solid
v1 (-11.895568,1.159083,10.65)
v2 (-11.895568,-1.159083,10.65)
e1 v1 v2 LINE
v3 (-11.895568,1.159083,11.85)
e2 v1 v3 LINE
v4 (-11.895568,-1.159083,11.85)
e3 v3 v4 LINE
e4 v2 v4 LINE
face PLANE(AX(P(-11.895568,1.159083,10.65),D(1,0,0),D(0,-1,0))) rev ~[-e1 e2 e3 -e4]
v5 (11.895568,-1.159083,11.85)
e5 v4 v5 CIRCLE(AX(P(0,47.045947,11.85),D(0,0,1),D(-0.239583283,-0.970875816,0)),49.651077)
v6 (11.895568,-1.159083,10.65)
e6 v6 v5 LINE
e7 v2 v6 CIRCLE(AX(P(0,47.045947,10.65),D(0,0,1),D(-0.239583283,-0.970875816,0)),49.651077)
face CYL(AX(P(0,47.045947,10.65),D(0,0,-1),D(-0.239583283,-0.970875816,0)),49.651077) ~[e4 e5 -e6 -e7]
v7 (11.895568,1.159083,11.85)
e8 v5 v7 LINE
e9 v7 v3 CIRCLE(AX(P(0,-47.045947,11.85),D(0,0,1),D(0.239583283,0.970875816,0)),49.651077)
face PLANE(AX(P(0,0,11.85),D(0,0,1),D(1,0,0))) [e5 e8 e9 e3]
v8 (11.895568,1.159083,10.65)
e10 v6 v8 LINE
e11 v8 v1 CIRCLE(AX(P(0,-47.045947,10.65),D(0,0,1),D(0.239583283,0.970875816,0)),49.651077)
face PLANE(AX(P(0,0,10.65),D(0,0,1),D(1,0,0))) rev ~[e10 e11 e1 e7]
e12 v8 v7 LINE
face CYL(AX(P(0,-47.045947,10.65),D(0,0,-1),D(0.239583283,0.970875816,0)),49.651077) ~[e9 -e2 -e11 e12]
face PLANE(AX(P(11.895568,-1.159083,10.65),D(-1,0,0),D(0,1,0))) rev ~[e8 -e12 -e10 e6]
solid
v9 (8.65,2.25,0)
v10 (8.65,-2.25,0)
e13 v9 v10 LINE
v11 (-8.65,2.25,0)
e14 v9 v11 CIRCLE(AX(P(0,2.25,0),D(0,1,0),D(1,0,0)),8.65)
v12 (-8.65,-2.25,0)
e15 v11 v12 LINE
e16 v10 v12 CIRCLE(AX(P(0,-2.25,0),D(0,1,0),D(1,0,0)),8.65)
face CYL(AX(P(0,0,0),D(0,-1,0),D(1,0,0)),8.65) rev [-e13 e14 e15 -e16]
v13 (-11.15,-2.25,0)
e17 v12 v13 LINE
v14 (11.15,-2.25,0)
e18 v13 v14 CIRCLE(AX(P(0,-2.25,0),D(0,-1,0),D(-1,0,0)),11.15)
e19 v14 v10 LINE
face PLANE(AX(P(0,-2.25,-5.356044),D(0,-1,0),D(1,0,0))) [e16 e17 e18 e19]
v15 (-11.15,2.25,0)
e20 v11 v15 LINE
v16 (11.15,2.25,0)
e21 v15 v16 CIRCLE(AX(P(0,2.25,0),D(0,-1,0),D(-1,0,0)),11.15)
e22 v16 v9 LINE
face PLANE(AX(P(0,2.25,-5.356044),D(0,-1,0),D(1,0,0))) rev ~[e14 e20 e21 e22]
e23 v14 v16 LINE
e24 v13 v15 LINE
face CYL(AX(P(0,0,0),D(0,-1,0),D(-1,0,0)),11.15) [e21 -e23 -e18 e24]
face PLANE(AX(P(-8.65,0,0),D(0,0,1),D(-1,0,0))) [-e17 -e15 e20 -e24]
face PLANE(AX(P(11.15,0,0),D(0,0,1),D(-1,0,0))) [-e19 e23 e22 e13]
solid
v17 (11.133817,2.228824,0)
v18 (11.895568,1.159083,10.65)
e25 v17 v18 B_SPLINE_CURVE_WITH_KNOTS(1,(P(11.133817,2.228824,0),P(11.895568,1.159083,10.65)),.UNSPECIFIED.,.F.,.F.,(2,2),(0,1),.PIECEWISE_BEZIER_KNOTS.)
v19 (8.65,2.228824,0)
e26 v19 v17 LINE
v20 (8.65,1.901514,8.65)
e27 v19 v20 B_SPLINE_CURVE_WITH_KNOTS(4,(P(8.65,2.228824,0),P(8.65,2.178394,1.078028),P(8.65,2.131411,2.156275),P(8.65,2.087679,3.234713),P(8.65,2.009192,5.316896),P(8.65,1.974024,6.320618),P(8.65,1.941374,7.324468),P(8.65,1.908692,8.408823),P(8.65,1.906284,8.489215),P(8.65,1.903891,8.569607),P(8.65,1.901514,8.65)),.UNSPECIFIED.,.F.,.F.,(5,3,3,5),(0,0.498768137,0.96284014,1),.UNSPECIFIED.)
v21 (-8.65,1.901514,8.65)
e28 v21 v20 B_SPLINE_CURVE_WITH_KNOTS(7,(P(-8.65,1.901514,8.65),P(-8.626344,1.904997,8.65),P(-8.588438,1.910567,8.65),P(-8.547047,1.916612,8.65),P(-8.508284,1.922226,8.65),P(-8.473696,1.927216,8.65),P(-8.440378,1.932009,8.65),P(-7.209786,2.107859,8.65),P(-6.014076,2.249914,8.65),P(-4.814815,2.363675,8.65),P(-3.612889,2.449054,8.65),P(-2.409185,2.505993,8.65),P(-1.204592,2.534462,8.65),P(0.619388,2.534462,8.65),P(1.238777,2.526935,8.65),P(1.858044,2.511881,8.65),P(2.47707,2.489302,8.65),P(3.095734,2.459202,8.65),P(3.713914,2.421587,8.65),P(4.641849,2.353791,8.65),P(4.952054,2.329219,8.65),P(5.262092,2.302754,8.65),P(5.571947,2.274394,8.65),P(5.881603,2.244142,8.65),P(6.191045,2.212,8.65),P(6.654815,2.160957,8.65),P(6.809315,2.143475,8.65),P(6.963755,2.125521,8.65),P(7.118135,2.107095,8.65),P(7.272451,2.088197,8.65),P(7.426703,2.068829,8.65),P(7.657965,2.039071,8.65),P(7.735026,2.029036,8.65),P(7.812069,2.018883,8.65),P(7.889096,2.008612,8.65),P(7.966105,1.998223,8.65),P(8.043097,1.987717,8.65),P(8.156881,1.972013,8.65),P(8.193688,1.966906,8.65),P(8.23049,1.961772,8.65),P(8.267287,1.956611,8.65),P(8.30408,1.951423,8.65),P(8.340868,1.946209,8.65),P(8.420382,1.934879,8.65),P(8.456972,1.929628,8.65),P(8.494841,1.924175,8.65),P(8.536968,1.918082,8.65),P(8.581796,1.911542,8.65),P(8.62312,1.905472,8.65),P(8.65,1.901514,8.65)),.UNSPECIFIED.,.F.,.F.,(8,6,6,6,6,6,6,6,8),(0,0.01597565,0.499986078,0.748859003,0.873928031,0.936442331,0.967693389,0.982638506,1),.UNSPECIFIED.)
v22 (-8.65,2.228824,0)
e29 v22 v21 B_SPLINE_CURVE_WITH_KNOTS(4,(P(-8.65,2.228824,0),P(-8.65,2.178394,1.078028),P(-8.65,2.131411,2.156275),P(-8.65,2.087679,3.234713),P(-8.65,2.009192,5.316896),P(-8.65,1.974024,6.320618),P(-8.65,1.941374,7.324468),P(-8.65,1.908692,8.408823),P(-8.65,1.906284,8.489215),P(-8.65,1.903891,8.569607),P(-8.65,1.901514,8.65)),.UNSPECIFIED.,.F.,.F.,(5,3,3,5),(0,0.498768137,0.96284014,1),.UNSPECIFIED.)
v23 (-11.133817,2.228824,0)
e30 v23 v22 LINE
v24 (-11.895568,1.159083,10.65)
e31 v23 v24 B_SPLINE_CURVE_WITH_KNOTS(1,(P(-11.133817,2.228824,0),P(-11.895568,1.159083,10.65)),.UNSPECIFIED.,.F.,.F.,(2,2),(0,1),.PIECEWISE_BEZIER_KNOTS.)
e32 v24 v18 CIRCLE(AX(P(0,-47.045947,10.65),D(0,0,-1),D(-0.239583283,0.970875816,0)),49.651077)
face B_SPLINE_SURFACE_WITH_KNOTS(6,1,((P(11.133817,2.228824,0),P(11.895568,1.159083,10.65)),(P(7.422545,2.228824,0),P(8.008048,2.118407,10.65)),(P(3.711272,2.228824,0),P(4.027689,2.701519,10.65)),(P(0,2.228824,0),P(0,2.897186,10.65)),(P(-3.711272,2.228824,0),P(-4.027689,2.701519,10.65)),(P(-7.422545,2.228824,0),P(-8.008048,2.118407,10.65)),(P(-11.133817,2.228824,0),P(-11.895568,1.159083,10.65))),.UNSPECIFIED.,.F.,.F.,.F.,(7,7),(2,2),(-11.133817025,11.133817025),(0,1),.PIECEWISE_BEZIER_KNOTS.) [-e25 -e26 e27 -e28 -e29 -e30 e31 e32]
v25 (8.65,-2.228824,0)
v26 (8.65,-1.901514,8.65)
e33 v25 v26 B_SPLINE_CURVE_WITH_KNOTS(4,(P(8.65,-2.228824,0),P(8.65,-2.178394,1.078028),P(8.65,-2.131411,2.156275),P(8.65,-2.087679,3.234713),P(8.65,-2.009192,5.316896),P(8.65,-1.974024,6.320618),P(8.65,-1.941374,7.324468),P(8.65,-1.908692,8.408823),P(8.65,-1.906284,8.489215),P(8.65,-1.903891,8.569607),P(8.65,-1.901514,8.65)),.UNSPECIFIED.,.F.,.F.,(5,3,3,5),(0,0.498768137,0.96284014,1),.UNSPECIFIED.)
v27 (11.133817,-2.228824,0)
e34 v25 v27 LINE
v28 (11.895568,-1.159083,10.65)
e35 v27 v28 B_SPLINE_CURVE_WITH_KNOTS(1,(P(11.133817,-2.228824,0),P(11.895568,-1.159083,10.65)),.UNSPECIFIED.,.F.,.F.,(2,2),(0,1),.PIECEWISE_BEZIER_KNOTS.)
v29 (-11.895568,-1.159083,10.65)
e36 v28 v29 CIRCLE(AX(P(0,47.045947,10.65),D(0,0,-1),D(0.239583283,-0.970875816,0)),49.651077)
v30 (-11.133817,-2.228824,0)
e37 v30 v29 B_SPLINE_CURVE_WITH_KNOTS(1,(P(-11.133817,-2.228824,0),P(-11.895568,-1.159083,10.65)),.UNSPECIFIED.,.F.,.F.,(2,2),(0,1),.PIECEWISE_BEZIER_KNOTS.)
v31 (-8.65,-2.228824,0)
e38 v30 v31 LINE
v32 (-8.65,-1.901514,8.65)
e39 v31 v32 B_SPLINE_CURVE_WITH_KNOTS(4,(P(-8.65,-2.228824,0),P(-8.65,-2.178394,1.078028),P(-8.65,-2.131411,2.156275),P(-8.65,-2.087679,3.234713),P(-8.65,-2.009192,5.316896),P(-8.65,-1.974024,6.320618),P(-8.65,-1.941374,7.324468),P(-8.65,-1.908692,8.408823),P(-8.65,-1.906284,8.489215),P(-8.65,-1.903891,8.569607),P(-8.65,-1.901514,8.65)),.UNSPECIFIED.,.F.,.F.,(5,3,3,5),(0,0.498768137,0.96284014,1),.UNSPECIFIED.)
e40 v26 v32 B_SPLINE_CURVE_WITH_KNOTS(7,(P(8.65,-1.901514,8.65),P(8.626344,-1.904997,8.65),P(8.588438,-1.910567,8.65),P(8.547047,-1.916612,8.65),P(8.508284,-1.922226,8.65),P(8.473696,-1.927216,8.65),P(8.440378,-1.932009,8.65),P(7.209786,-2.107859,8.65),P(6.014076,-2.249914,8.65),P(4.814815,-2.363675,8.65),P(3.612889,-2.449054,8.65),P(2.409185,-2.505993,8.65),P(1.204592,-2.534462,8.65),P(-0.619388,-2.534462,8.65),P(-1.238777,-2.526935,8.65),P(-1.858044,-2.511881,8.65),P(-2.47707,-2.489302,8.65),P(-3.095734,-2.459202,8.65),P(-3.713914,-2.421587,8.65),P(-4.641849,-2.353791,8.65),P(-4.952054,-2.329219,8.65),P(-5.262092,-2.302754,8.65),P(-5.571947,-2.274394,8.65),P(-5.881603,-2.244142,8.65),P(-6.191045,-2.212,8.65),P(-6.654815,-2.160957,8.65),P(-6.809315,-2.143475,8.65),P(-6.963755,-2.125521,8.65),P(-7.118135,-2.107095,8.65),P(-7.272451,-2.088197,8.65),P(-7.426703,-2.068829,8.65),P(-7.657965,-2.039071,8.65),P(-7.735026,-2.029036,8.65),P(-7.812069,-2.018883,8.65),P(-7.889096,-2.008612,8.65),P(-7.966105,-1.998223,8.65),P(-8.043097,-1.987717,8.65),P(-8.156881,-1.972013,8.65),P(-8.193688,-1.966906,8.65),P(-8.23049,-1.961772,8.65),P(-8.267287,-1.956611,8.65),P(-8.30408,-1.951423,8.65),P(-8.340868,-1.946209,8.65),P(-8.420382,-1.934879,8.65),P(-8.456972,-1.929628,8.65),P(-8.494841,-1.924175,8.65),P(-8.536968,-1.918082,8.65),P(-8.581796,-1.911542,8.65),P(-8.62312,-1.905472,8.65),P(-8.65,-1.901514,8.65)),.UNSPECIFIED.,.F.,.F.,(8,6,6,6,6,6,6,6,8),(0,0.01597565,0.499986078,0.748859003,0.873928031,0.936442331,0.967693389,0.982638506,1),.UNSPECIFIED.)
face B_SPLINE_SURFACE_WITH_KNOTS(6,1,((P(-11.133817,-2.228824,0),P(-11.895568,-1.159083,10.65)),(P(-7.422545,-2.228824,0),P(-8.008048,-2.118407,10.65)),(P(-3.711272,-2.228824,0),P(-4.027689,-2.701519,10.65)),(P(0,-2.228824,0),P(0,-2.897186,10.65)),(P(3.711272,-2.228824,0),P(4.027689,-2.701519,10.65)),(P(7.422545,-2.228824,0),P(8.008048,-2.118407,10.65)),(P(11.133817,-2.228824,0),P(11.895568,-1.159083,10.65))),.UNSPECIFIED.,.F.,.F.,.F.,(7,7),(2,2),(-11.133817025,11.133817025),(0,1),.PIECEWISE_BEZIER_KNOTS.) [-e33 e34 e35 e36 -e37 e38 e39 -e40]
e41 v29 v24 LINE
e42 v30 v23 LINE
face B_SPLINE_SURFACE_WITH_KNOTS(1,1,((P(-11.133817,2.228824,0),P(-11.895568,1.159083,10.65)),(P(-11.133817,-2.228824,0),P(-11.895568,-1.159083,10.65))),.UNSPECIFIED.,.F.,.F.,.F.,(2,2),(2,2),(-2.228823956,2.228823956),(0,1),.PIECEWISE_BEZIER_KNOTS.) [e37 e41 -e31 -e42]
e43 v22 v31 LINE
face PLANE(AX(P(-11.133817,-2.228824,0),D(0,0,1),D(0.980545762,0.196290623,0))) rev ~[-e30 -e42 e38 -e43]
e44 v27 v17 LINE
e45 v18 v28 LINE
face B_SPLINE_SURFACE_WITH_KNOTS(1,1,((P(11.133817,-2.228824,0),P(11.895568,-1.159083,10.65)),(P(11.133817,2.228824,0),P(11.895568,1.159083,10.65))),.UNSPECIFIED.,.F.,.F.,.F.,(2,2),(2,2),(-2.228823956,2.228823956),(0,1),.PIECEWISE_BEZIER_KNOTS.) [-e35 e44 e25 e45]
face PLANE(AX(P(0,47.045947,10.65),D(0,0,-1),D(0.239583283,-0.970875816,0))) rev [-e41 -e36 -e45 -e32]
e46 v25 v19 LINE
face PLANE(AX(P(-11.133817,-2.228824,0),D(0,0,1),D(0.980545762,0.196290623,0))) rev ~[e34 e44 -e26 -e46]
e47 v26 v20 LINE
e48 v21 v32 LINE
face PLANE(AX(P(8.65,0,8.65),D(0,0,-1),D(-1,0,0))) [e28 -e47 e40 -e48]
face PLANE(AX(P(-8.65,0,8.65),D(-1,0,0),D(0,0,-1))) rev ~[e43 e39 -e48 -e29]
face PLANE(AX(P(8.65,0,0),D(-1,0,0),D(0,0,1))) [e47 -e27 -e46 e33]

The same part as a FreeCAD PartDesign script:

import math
import FreeCAD as App
import Part
import Sketcher


def add_polygon(sketch, points):
    """Adds a closed chain of lines whose ends are joined by coincident constraints."""
    first, n = sketch.GeometryCount, len(points)
    for a, b in zip(points, points[1:] + points[:1]):
        sketch.addGeometry(Part.LineSegment(App.Vector(*a, 0), App.Vector(*b, 0)), False)
    for i in range(n):
        sketch.addConstraint(Sketcher.Constraint("Coincident", first + i, 2, first + (i + 1) % n, 1))

doc = App.newDocument("Part")
body = doc.addObject("PartDesign::Body", "Body")

# Sketch on XZ plane
sketch1 = body.newObject("Sketcher::SketchObject", "Sketch")
sketch1.AttachmentSupport = (doc.getObject("XZ_Plane"), [""])
sketch1.MapMode = "FlatFace"
sketch1.addGeometry([
    Part.LineSegment(App.Vector(11.2, 0, 0), App.Vector(8.7, 0, 0)),
    Part.ArcOfCircle(Part.Circle(App.Vector(0, 0, 0), App.Vector(0, 0, 1), 8.7), math.radians(180), math.radians(360)),
    Part.LineSegment(App.Vector(-8.7, 0, 0), App.Vector(-11.2, 0, 0)),
    Part.ArcOfCircle(Part.Circle(App.Vector(0, 0, 0), App.Vector(0, 0, 1), 11.2), math.radians(180), math.radians(360)),
], False)
sketch1.addConstraint([
    Sketcher.Constraint("Coincident", 0, 2, 1, 2),
    Sketcher.Constraint("Coincident", 1, 1, 2, 1),
    Sketcher.Constraint("Coincident", 2, 2, 3, 1),
    Sketcher.Constraint("Coincident", 3, 2, 0, 1),
    Sketcher.Constraint("Horizontal", 0),
    Sketcher.Constraint("Horizontal", 2),
    Sketcher.Constraint("Coincident", 1, 3, -1, 1),
    Sketcher.Constraint("Coincident", 3, 3, -1, 1),
    Sketcher.Constraint("PointOnObject", 0, 2, -1),
    Sketcher.Constraint("PointOnObject", 1, 1, -1),
    Sketcher.Constraint("Radius", 1, 8.65),
    Sketcher.Constraint("Radius", 3, 11.15),
])
pad1 = body.newObject("PartDesign::Pad", "Pad")
pad1.Profile = sketch1
pad1.Type = "TwoLengths"
pad1.Length = 2.25
pad1.Length2 = 2.25
body2 = doc.addObject("PartDesign::Body", "Body001")

# Sketch on XY plane
sketch2 = body2.newObject("Sketcher::SketchObject", "Sketch001")
sketch2.AttachmentSupport = (doc.getObject("XY_Plane001"), [""])
sketch2.MapMode = "FlatFace"
sketch2.AttachmentOffset = App.Placement(App.Vector(0, 0, 10.65), App.Rotation())
sketch2.addGeometry([
    Part.LineSegment(App.Vector(-11.9, 1.2, 0), App.Vector(-11.9, -1.2, 0)),
    Part.ArcOfCircle(Part.Circle(App.Vector(0, 47, 0), App.Vector(0, 0, 1), 49.7), math.radians(-104), math.radians(-76)),
    Part.LineSegment(App.Vector(11.9, -1.2, 0), App.Vector(11.9, 1.2, 0)),
    Part.ArcOfCircle(Part.Circle(App.Vector(0, -47, 0), App.Vector(0, 0, 1), 49.7), math.radians(76), math.radians(104)),
], False)
sketch2.addConstraint([
    Sketcher.Constraint("Coincident", 0, 2, 1, 1),
    Sketcher.Constraint("Coincident", 1, 2, 2, 1),
    Sketcher.Constraint("Coincident", 2, 2, 3, 1),
    Sketcher.Constraint("Coincident", 3, 2, 0, 1),
    Sketcher.Constraint("Vertical", 0),
    Sketcher.Constraint("Vertical", 2),
    Sketcher.Constraint("Equal", 1, 3),
    Sketcher.Constraint("Symmetric", 1, 3, 3, 3, -1, 1),
    Sketcher.Constraint("Symmetric", 0, 2, 1, 2, -2),
    Sketcher.Constraint("Radius", 1, 49.651077),
    Sketcher.Constraint("DistanceY", 0, 2, 0, 1, 2.318166),
    Sketcher.Constraint("DistanceX", 0, 2, -1, 1, 11.895568),
])
pad2 = body2.newObject("PartDesign::Pad", "Pad001")
pad2.Profile = sketch2
pad2.Length = 1.2
body3 = doc.addObject("PartDesign::Body", "Body002")

# Sketch on XY plane
sketch3 = body3.newObject("Sketcher::SketchObject", "Sketch002")
sketch3.AttachmentSupport = (doc.getObject("XY_Plane002"), [""])
sketch3.MapMode = "FlatFace"
add_polygon(sketch3, [(-11.1, 2.2), (-11.1, -2.2), (11.1, -2.2), (11.1, 2.2)])  # lines 0-3
sketch3.addConstraint([
    Sketcher.Constraint("Vertical", 0),
    Sketcher.Constraint("Horizontal", 1),
    Sketcher.Constraint("Vertical", 2),
    Sketcher.Constraint("Horizontal", 3),
    Sketcher.Constraint("Symmetric", 0, 2, 2, 2, -1, 1),
    Sketcher.Constraint("DistanceX", 1, 1, 1, 2, 22.267634),
    Sketcher.Constraint("DistanceY", 0, 2, 0, 1, 4.457648),
])

# Sketch on XY plane
sketch4 = body3.newObject("Sketcher::SketchObject", "Sketch003")
sketch4.AttachmentSupport = (doc.getObject("XY_Plane002"), [""])
sketch4.MapMode = "FlatFace"
sketch4.AttachmentOffset = App.Placement(App.Vector(0, 0, 10.65), App.Rotation())
sketch4.addGeometry([
    Part.LineSegment(App.Vector(-11.9, -1.2, 0), App.Vector(-11.9, 1.2, 0)),
    Part.ArcOfCircle(Part.Circle(App.Vector(0, -47, 0), App.Vector(0, 0, 1), 49.7), math.radians(76), math.radians(104)),
    Part.LineSegment(App.Vector(11.9, 1.2, 0), App.Vector(11.9, -1.2, 0)),
    Part.ArcOfCircle(Part.Circle(App.Vector(0, 47, 0), App.Vector(0, 0, 1), 49.7), math.radians(-104), math.radians(-76)),
], False)
sketch4.addConstraint([
    Sketcher.Constraint("Coincident", 0, 2, 1, 2),
    Sketcher.Constraint("Coincident", 1, 1, 2, 1),
    Sketcher.Constraint("Coincident", 2, 2, 3, 2),
    Sketcher.Constraint("Coincident", 3, 1, 0, 1),
    Sketcher.Constraint("Vertical", 0),
    Sketcher.Constraint("Vertical", 2),
    Sketcher.Constraint("Equal", 1, 3),
    Sketcher.Constraint("Symmetric", 1, 3, 3, 3, -1, 1),
    Sketcher.Constraint("Symmetric", 0, 2, 1, 1, -2),
    Sketcher.Constraint("Radius", 1, 49.651077),
    Sketcher.Constraint("DistanceY", 0, 1, 0, 2, 2.318166),
    Sketcher.Constraint("DistanceX", 0, 2, -1, 1, 11.895568),
])

additiveloft = body3.newObject("PartDesign::AdditiveLoft", "AdditiveLoft")
additiveloft.Profile = sketch3
additiveloft.Sections = [sketch4]

# Sketch on XZ plane
sketch5 = body3.newObject("Sketcher::SketchObject", "Sketch004")
sketch5.AttachmentSupport = (doc.getObject("XZ_Plane002"), [""])
sketch5.MapMode = "FlatFace"
add_polygon(sketch5, [(-9, 0), (9, 0), (9, 9), (-9, 9)])  # lines 0-3
sketch5.addConstraint([
    Sketcher.Constraint("Horizontal", 0),
    Sketcher.Constraint("Vertical", 1),
    Sketcher.Constraint("Horizontal", 2),
    Sketcher.Constraint("Vertical", 3),
    Sketcher.Constraint("Symmetric", 0, 2, 3, 2, -1, 1),
    Sketcher.Constraint("DistanceX", 0, 1, 0, 2, 17.3),
    Sketcher.Constraint("DistanceY", 1, 1, 1, 2, 8.65),
])
pocket1 = body3.newObject("PartDesign::Pocket", "Pocket")
pocket1.Profile = sketch5
pocket1.Type = "ThroughAll"
pocket1.Midplane = True

doc.recompute()
